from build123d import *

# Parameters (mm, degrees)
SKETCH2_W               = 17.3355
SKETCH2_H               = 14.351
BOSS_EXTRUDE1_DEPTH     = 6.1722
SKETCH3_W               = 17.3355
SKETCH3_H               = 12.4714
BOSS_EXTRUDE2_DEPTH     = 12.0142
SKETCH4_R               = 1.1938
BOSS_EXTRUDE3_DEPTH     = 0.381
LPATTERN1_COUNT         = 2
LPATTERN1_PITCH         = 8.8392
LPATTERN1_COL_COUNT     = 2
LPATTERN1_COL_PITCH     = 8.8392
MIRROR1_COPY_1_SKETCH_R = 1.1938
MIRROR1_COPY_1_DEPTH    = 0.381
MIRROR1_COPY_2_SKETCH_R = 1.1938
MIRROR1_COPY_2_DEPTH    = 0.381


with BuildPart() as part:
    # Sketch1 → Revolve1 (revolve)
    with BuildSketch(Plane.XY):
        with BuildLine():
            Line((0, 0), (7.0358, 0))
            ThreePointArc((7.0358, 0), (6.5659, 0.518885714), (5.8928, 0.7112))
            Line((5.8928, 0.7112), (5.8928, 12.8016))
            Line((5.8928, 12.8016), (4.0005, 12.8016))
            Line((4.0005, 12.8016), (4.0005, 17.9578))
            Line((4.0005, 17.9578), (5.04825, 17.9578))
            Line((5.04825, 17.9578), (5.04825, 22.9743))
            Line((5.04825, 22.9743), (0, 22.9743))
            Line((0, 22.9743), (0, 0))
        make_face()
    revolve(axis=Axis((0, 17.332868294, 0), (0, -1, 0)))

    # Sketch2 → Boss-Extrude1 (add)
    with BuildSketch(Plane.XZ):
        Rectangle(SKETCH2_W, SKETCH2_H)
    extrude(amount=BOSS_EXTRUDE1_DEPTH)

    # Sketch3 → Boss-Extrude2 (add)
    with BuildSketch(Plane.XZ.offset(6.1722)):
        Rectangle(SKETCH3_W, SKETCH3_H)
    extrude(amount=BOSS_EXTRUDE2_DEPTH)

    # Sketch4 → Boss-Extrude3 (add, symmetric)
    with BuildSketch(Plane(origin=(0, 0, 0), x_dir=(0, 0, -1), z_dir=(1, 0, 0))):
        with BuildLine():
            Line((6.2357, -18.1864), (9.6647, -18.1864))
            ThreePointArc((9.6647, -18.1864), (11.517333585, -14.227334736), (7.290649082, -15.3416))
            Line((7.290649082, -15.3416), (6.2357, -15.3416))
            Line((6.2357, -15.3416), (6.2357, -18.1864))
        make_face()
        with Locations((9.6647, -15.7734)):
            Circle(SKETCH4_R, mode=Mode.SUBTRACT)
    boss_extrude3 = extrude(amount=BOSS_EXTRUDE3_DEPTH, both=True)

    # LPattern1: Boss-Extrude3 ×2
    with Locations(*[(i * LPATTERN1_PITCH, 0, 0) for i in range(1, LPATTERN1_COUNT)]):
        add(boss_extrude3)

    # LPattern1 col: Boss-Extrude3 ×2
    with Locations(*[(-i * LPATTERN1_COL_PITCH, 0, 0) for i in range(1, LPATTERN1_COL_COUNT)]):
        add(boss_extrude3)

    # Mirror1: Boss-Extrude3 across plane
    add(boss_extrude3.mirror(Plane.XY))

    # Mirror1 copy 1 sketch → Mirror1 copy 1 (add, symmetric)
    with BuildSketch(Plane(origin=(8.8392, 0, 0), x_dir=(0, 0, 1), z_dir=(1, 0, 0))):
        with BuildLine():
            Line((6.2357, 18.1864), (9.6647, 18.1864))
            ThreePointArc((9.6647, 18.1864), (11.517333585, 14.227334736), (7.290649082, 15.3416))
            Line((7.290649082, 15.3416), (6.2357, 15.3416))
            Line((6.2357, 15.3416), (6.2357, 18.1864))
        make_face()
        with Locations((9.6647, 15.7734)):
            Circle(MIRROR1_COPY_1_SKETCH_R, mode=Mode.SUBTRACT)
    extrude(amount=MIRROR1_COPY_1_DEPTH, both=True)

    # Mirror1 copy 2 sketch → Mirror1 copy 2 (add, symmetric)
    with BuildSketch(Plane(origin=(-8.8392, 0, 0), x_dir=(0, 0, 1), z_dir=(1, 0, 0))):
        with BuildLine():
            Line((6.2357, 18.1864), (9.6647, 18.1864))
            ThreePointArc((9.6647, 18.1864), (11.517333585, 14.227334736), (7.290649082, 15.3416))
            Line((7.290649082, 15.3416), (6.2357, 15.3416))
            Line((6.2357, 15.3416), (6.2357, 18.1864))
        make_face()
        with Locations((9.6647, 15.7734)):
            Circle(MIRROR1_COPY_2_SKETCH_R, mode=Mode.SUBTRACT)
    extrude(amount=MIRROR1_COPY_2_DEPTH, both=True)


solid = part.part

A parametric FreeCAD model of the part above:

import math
import FreeCAD as App
import Part
import Sketcher

V = App.Vector
Q = App.Units.Quantity

doc = App.newDocument("Part")
body = doc.addObject("PartDesign::Body", "Body")

sketch1 = doc.addObject("Sketcher::SketchObject", "Sketch")
body.addObject(sketch1)
sketch1.AttachmentSupport = (doc.XY_Plane, [""])
sketch1.MapMode = "FlatFace"
sketch1.addGeometry(Part.LineSegment(V(0, 0, 0), V(7, 0, 0)), False)
sketch1.addGeometry(Part.ArcOfCircle(Part.Circle(V(5.9, -0.6, 0), V(0, 0, 1), 1.3), math.radians(26), math.radians(90)), False)
sketch1.addGeometry(Part.LineSegment(V(5.9, 0.7, 0), V(5.9, 12.8, 0)), False)
sketch1.addGeometry(Part.LineSegment(V(5.9, 12.8, 0), V(4, 12.8, 0)), False)
sketch1.addGeometry(Part.LineSegment(V(4, 12.8, 0), V(4, 18, 0)), False)
sketch1.addGeometry(Part.LineSegment(V(4, 18, 0), V(5, 18, 0)), False)
sketch1.addGeometry(Part.LineSegment(V(5, 18, 0), V(5, 23, 0)), False)
sketch1.addGeometry(Part.LineSegment(V(5, 23, 0), V(0, 23, 0)), False)
sketch1.addGeometry(Part.LineSegment(V(0, 23, 0), V(0, 0, 0)), False)
sketch1.addConstraint(Sketcher.Constraint("Coincident", 0, 2, 1, 1))
sketch1.addConstraint(Sketcher.Constraint("Coincident", 1, 2, 2, 1))
sketch1.addConstraint(Sketcher.Constraint("Coincident", 2, 2, 3, 1))
sketch1.addConstraint(Sketcher.Constraint("Coincident", 3, 2, 4, 1))
sketch1.addConstraint(Sketcher.Constraint("Coincident", 4, 2, 5, 1))
sketch1.addConstraint(Sketcher.Constraint("Coincident", 5, 2, 6, 1))
sketch1.addConstraint(Sketcher.Constraint("Coincident", 6, 2, 7, 1))
sketch1.addConstraint(Sketcher.Constraint("Coincident", 7, 2, 8, 1))
sketch1.addConstraint(Sketcher.Constraint("Coincident", 8, 2, 0, 1))
sketch1.addConstraint(Sketcher.Constraint("Horizontal", 0))
sketch1.addConstraint(Sketcher.Constraint("Vertical", 2))
sketch1.addConstraint(Sketcher.Constraint("Horizontal", 3))
sketch1.addConstraint(Sketcher.Constraint("Vertical", 4))
sketch1.addConstraint(Sketcher.Constraint("Horizontal", 5))
sketch1.addConstraint(Sketcher.Constraint("Vertical", 6))
sketch1.addConstraint(Sketcher.Constraint("Horizontal", 7))
sketch1.addConstraint(Sketcher.Constraint("Vertical", 8))
sketch1.addConstraint(Sketcher.Constraint("Coincident", 8, 2, -1, 1))
sketch1.addConstraint(Sketcher.Constraint("DistanceX", 0, 1, 0, 2, Q("0.277 in")))
sketch1.addConstraint(Sketcher.Constraint("DistanceY", 2, 1, 2, 2, Q("0.476 in")))
sketch1.addConstraint(Sketcher.Constraint("DistanceY", 4, 1, 4, 2, Q("0.203 in")))
sketch1.addConstraint(Sketcher.Constraint("DistanceX", 3, 2, 3, 1, Q("0.0745 in")))
sketch1.addConstraint(Sketcher.Constraint("DistanceY", 6, 1, 6, 2, Q("0.1975 in")))
sketch1.addConstraint(Sketcher.Constraint("DistanceY", 8, 2, 8, 1, Q("0.9045 in")))
sketch1.addConstraint(Sketcher.Constraint("DistanceX", -1, 1, 1, 3, Q("0.232 in")))
sketch1.addConstraint(Sketcher.Constraint("DistanceX", -1, 1, 1, 2, Q("0.232 in")))
sketch1.addConstraint(Sketcher.Constraint("DistanceX", 5, 1, 5, 2, 1.04775))
revolution = doc.addObject("PartDesign::Revolution", "Revolution")
body.addObject(revolution)
revolution.Profile = sketch1
revolution.ReferenceAxis = (sketch1, ["V_Axis"])
revolution.Angle = 360

sketch2 = doc.addObject("Sketcher::SketchObject", "Sketch001")
body.addObject(sketch2)
sketch2.AttachmentSupport = (doc.XZ_Plane, [""])
sketch2.MapMode = "FlatFace"
sketch2.addGeometry(Part.LineSegment(V(-9, 7, 0), V(-9, -7, 0)), False)
sketch2.addGeometry(Part.LineSegment(V(-9, -7, 0), V(9, -7, 0)), False)
sketch2.addGeometry(Part.LineSegment(V(9, -7, 0), V(9, 7, 0)), False)
sketch2.addGeometry(Part.LineSegment(V(9, 7, 0), V(-9, 7, 0)), False)
sketch2.addConstraint(Sketcher.Constraint("Coincident", 0, 2, 1, 1))
sketch2.addConstraint(Sketcher.Constraint("Coincident", 1, 2, 2, 1))
sketch2.addConstraint(Sketcher.Constraint("Coincident", 2, 2, 3, 1))
sketch2.addConstraint(Sketcher.Constraint("Coincident", 3, 2, 0, 1))
sketch2.addConstraint(Sketcher.Constraint("Vertical", 0))
sketch2.addConstraint(Sketcher.Constraint("Horizontal", 1))
sketch2.addConstraint(Sketcher.Constraint("Vertical", 2))
sketch2.addConstraint(Sketcher.Constraint("Horizontal", 3))
sketch2.addConstraint(Sketcher.Constraint("Symmetric", 0, 2, 2, 2, -1, 1))
sketch2.addConstraint(Sketcher.Constraint("DistanceY", 0, 2, 0, 1, Q("0.565 in")))
sketch2.addConstraint(Sketcher.Constraint("DistanceX", 1, 1, 1, 2, Q("0.6825 in")))
pad1 = doc.addObject("PartDesign::Pad", "Pad")
body.addObject(pad1)
pad1.Profile = sketch2
pad1.Length = Q("0.243 in")

sketch3 = doc.addObject("Sketcher::SketchObject", "Sketch002")
body.addObject(sketch3)
sketch3.AttachmentSupport = (doc.XZ_Plane, [""])
sketch3.MapMode = "FlatFace"
sketch3.AttachmentOffset = App.Placement(V(0, 0, 0.243 * 25.4), App.Rotation())
sketch3.addGeometry(Part.LineSegment(V(-9, 6, 0), V(-9, -6, 0)), False)
sketch3.addGeometry(Part.LineSegment(V(-9, -6, 0), V(9, -6, 0)), False)
sketch3.addGeometry(Part.LineSegment(V(9, -6, 0), V(9, 6, 0)), False)
sketch3.addGeometry(Part.LineSegment(V(9, 6, 0), V(-9, 6, 0)), False)
sketch3.addConstraint(Sketcher.Constraint("Coincident", 0, 2, 1, 1))
sketch3.addConstraint(Sketcher.Constraint("Coincident", 1, 2, 2, 1))
sketch3.addConstraint(Sketcher.Constraint("Coincident", 2, 2, 3, 1))
sketch3.addConstraint(Sketcher.Constraint("Coincident", 3, 2, 0, 1))
sketch3.addConstraint(Sketcher.Constraint("Vertical", 0))
sketch3.addConstraint(Sketcher.Constraint("Horizontal", 1))
sketch3.addConstraint(Sketcher.Constraint("Vertical", 2))
sketch3.addConstraint(Sketcher.Constraint("Horizontal", 3))
sketch3.addConstraint(Sketcher.Constraint("Symmetric", 0, 2, 2, 2, -1, 1))
sketch3.addConstraint(Sketcher.Constraint("DistanceY", 0, 2, 0, 1, Q("0.491 in")))
sketch3.addConstraint(Sketcher.Constraint("DistanceX", 1, 1, 1, 2, Q("0.6825 in")))
pad2 = doc.addObject("PartDesign::Pad", "Pad001")
body.addObject(pad2)
pad2.Profile = sketch3
pad2.Length = Q("0.473 in")

sketch4 = doc.addObject("Sketcher::SketchObject", "Sketch003")
body.addObject(sketch4)
sketch4.AttachmentSupport = (doc.YZ_Plane, [""])
sketch4.MapMode = "FlatFace"
sketch4.addGeometry(Part.LineSegment(V(-18.2, -6.2, 0), V(-18.2, -9.7, 0)), False)
sketch4.addGeometry(Part.ArcOfCircle(Part.Circle(V(-15.8, -9.7, 0), V(0, 0, 1), 2.4), math.radians(180), math.radians(440)), False)
sketch4.addGeometry(Part.LineSegment(V(-15.3, -7.3, 0), V(-15.3, -6.2, 0)), False)
sketch4.addGeometry(Part.LineSegment(V(-15.3, -6.2, 0), V(-18.2, -6.2, 0)), False)
sketch4.addGeometry(Part.Circle(V(-15.8, -9.7, 0), V(0, 0, 1), 1.2), False)
sketch4.addConstraint(Sketcher.Constraint("Tangent", 0, 2, 1, 1))
sketch4.addConstraint(Sketcher.Constraint("Coincident", 1, 2, 2, 1))
sketch4.addConstraint(Sketcher.Constraint("Coincident", 2, 2, 3, 1))
sketch4.addConstraint(Sketcher.Constraint("Coincident", 3, 2, 0, 1))
sketch4.addConstraint(Sketcher.Constraint("Vertical", 0))
sketch4.addConstraint(Sketcher.Constraint("Vertical", 2))
sketch4.addConstraint(Sketcher.Constraint("Horizontal", 3))
sketch4.addConstraint(Sketcher.Constraint("Coincident", 4, 3, 1, 3))
sketch4.addConstraint(Sketcher.Constraint("Diameter", 4, Q("0.094 in")))
sketch4.addConstraint(Sketcher.Constraint("Radius", 1, Q("0.095 in")))
sketch4.addConstraint(Sketcher.Constraint("DistanceX", 3, 2, 3, 1, Q("0.112 in")))
sketch4.addConstraint(Sketcher.Constraint("DistanceY", 0, 2, 0, 1, Q("0.135 in")))
sketch4.addConstraint(Sketcher.Constraint("DistanceX", 1, 3, -1, 1, Q("0.621 in")))
sketch4.addConstraint(Sketcher.Constraint("DistanceY", 1, 3, -1, 1, Q("0.3805 in")))
pad3 = doc.addObject("PartDesign::Pad", "Pad002")
body.addObject(pad3)
pad3.Profile = sketch4
pad3.Length = Q("0.03 in")
pad3.Midplane = True
doc.recompute()

linearpattern = doc.addObject("PartDesign::LinearPattern", "LinearPattern")
body.addObject(linearpattern)
linearpattern.Originals = [pad3]
linearpattern.Direction = (doc.X_Axis, [""])
linearpattern.Mode = "offset"
linearpattern.Offset = Q("0.348 in")
linearpattern.Occurrences = 2
body.Tip = linearpattern
doc.recompute()

linearpattern2 = doc.addObject("PartDesign::LinearPattern", "LinearPattern001")
body.addObject(linearpattern2)
linearpattern2.Originals = [pad3]
linearpattern2.Direction = (doc.X_Axis, [""])
linearpattern2.Mode = "offset"
linearpattern2.Offset = Q("0.348 in")
linearpattern2.Occurrences = 2
linearpattern2.Reversed = True
body.Tip = linearpattern2
doc.recompute()

mirrored = doc.addObject("PartDesign::Mirrored", "Mirrored")
body.addObject(mirrored)
mirrored.Originals = [pad3]
mirrored.MirrorPlane = (doc.XY_Plane, [""])
body.Tip = mirrored

sketch5 = doc.addObject("Sketcher::SketchObject", "Sketch004")
body.addObject(sketch5)
sketch5.AttachmentSupport = (doc.YZ_Plane, [""])
sketch5.MapMode = "FlatFace"
sketch5.AttachmentOffset = App.Placement(V(0, 0, 0.348 * 25.4), App.Rotation())
sketch5.addGeometry(Part.LineSegment(V(-18.2, 9.7, 0), V(-18.2, 6.2, 0)), False)
sketch5.addGeometry(Part.LineSegment(V(-18.2, 6.2, 0), V(-15.3, 6.2, 0)), False)
sketch5.addGeometry(Part.LineSegment(V(-15.3, 6.2, 0), V(-15.3, 7.3, 0)), False)
sketch5.addGeometry(Part.ArcOfCircle(Part.Circle(V(-15.8, 9.7, 0), V(0, 0, 1), 2.4), math.radians(-80), math.radians(180)), False)
sketch5.addGeometry(Part.Circle(V(-15.8, 9.7, 0), V(0, 0, 1), 1.2), False)
sketch5.addConstraint(Sketcher.Constraint("Coincident", 0, 2, 1, 1))
sketch5.addConstraint(Sketcher.Constraint("Coincident", 1, 2, 2, 1))
sketch5.addConstraint(Sketcher.Constraint("Coincident", 2, 2, 3, 1))
sketch5.addConstraint(Sketcher.Constraint("Tangent", 3, 2, 0, 1))
sketch5.addConstraint(Sketcher.Constraint("Vertical", 0))
sketch5.addConstraint(Sketcher.Constraint("Horizontal", 1))
sketch5.addConstraint(Sketcher.Constraint("Vertical", 2))
sketch5.addConstraint(Sketcher.Constraint("Coincident", 4, 3, 3, 3))
sketch5.addConstraint(Sketcher.Constraint("Diameter", 4, Q("0.094 in")))
sketch5.addConstraint(Sketcher.Constraint("Radius", 3, Q("0.095 in")))
sketch5.addConstraint(Sketcher.Constraint("DistanceX", 1, 1, 1, 2, Q("0.112 in")))
sketch5.addConstraint(Sketcher.Constraint("DistanceY", 0, 2, 0, 1, Q("0.135 in")))
sketch5.addConstraint(Sketcher.Constraint("DistanceX", 3, 3, -1, 1, Q("0.621 in")))
sketch5.addConstraint(Sketcher.Constraint("DistanceY", -1, 1, 3, 3, Q("0.3805 in")))
pad4 = doc.addObject("PartDesign::Pad", "Pad003")
body.addObject(pad4)
pad4.Profile = sketch5
pad4.Length = Q("0.03 in")
pad4.Midplane = True

sketch6 = doc.addObject("Sketcher::SketchObject", "Sketch005")
body.addObject(sketch6)
sketch6.AttachmentSupport = (doc.YZ_Plane, [""])
sketch6.MapMode = "FlatFace"
sketch6.AttachmentOffset = App.Placement(V(0, 0, -0.348 * 25.4), App.Rotation())
sketch6.addGeometry(Part.LineSegment(V(-18.2, 9.7, 0), V(-18.2, 6.2, 0)), False)
sketch6.addGeometry(Part.LineSegment(V(-18.2, 6.2, 0), V(-15.3, 6.2, 0)), False)
sketch6.addGeometry(Part.LineSegment(V(-15.3, 6.2, 0), V(-15.3, 7.3, 0)), False)
sketch6.addGeometry(Part.ArcOfCircle(Part.Circle(V(-15.8, 9.7, 0), V(0, 0, 1), 2.4), math.radians(-80), math.radians(180)), False)
sketch6.addGeometry(Part.Circle(V(-15.8, 9.7, 0), V(0, 0, 1), 1.2), False)
sketch6.addConstraint(Sketcher.Constraint("Coincident", 0, 2, 1, 1))
sketch6.addConstraint(Sketcher.Constraint("Coincident", 1, 2, 2, 1))
sketch6.addConstraint(Sketcher.Constraint("Coincident", 2, 2, 3, 1))
sketch6.addConstraint(Sketcher.Constraint("Tangent", 3, 2, 0, 1))
sketch6.addConstraint(Sketcher.Constraint("Vertical", 0))
sketch6.addConstraint(Sketcher.Constraint("Horizontal", 1))
sketch6.addConstraint(Sketcher.Constraint("Vertical", 2))
sketch6.addConstraint(Sketcher.Constraint("Coincident", 4, 3, 3, 3))
sketch6.addConstraint(Sketcher.Constraint("Diameter", 4, Q("0.094 in")))
sketch6.addConstraint(Sketcher.Constraint("Radius", 3, Q("0.095 in")))
sketch6.addConstraint(Sketcher.Constraint("DistanceX", 1, 1, 1, 2, Q("0.112 in")))
sketch6.addConstraint(Sketcher.Constraint("DistanceY", 0, 2, 0, 1, Q("0.135 in")))
sketch6.addConstraint(Sketcher.Constraint("DistanceX", 3, 3, -1, 1, Q("0.621 in")))
sketch6.addConstraint(Sketcher.Constraint("DistanceY", -1, 1, 3, 3, Q("0.3805 in")))
pad5 = doc.addObject("PartDesign::Pad", "Pad004")
body.addObject(pad5)
pad5.Profile = sketch6
pad5.Length = Q("0.03 in")
pad5.Midplane = True

doc.recompute()
